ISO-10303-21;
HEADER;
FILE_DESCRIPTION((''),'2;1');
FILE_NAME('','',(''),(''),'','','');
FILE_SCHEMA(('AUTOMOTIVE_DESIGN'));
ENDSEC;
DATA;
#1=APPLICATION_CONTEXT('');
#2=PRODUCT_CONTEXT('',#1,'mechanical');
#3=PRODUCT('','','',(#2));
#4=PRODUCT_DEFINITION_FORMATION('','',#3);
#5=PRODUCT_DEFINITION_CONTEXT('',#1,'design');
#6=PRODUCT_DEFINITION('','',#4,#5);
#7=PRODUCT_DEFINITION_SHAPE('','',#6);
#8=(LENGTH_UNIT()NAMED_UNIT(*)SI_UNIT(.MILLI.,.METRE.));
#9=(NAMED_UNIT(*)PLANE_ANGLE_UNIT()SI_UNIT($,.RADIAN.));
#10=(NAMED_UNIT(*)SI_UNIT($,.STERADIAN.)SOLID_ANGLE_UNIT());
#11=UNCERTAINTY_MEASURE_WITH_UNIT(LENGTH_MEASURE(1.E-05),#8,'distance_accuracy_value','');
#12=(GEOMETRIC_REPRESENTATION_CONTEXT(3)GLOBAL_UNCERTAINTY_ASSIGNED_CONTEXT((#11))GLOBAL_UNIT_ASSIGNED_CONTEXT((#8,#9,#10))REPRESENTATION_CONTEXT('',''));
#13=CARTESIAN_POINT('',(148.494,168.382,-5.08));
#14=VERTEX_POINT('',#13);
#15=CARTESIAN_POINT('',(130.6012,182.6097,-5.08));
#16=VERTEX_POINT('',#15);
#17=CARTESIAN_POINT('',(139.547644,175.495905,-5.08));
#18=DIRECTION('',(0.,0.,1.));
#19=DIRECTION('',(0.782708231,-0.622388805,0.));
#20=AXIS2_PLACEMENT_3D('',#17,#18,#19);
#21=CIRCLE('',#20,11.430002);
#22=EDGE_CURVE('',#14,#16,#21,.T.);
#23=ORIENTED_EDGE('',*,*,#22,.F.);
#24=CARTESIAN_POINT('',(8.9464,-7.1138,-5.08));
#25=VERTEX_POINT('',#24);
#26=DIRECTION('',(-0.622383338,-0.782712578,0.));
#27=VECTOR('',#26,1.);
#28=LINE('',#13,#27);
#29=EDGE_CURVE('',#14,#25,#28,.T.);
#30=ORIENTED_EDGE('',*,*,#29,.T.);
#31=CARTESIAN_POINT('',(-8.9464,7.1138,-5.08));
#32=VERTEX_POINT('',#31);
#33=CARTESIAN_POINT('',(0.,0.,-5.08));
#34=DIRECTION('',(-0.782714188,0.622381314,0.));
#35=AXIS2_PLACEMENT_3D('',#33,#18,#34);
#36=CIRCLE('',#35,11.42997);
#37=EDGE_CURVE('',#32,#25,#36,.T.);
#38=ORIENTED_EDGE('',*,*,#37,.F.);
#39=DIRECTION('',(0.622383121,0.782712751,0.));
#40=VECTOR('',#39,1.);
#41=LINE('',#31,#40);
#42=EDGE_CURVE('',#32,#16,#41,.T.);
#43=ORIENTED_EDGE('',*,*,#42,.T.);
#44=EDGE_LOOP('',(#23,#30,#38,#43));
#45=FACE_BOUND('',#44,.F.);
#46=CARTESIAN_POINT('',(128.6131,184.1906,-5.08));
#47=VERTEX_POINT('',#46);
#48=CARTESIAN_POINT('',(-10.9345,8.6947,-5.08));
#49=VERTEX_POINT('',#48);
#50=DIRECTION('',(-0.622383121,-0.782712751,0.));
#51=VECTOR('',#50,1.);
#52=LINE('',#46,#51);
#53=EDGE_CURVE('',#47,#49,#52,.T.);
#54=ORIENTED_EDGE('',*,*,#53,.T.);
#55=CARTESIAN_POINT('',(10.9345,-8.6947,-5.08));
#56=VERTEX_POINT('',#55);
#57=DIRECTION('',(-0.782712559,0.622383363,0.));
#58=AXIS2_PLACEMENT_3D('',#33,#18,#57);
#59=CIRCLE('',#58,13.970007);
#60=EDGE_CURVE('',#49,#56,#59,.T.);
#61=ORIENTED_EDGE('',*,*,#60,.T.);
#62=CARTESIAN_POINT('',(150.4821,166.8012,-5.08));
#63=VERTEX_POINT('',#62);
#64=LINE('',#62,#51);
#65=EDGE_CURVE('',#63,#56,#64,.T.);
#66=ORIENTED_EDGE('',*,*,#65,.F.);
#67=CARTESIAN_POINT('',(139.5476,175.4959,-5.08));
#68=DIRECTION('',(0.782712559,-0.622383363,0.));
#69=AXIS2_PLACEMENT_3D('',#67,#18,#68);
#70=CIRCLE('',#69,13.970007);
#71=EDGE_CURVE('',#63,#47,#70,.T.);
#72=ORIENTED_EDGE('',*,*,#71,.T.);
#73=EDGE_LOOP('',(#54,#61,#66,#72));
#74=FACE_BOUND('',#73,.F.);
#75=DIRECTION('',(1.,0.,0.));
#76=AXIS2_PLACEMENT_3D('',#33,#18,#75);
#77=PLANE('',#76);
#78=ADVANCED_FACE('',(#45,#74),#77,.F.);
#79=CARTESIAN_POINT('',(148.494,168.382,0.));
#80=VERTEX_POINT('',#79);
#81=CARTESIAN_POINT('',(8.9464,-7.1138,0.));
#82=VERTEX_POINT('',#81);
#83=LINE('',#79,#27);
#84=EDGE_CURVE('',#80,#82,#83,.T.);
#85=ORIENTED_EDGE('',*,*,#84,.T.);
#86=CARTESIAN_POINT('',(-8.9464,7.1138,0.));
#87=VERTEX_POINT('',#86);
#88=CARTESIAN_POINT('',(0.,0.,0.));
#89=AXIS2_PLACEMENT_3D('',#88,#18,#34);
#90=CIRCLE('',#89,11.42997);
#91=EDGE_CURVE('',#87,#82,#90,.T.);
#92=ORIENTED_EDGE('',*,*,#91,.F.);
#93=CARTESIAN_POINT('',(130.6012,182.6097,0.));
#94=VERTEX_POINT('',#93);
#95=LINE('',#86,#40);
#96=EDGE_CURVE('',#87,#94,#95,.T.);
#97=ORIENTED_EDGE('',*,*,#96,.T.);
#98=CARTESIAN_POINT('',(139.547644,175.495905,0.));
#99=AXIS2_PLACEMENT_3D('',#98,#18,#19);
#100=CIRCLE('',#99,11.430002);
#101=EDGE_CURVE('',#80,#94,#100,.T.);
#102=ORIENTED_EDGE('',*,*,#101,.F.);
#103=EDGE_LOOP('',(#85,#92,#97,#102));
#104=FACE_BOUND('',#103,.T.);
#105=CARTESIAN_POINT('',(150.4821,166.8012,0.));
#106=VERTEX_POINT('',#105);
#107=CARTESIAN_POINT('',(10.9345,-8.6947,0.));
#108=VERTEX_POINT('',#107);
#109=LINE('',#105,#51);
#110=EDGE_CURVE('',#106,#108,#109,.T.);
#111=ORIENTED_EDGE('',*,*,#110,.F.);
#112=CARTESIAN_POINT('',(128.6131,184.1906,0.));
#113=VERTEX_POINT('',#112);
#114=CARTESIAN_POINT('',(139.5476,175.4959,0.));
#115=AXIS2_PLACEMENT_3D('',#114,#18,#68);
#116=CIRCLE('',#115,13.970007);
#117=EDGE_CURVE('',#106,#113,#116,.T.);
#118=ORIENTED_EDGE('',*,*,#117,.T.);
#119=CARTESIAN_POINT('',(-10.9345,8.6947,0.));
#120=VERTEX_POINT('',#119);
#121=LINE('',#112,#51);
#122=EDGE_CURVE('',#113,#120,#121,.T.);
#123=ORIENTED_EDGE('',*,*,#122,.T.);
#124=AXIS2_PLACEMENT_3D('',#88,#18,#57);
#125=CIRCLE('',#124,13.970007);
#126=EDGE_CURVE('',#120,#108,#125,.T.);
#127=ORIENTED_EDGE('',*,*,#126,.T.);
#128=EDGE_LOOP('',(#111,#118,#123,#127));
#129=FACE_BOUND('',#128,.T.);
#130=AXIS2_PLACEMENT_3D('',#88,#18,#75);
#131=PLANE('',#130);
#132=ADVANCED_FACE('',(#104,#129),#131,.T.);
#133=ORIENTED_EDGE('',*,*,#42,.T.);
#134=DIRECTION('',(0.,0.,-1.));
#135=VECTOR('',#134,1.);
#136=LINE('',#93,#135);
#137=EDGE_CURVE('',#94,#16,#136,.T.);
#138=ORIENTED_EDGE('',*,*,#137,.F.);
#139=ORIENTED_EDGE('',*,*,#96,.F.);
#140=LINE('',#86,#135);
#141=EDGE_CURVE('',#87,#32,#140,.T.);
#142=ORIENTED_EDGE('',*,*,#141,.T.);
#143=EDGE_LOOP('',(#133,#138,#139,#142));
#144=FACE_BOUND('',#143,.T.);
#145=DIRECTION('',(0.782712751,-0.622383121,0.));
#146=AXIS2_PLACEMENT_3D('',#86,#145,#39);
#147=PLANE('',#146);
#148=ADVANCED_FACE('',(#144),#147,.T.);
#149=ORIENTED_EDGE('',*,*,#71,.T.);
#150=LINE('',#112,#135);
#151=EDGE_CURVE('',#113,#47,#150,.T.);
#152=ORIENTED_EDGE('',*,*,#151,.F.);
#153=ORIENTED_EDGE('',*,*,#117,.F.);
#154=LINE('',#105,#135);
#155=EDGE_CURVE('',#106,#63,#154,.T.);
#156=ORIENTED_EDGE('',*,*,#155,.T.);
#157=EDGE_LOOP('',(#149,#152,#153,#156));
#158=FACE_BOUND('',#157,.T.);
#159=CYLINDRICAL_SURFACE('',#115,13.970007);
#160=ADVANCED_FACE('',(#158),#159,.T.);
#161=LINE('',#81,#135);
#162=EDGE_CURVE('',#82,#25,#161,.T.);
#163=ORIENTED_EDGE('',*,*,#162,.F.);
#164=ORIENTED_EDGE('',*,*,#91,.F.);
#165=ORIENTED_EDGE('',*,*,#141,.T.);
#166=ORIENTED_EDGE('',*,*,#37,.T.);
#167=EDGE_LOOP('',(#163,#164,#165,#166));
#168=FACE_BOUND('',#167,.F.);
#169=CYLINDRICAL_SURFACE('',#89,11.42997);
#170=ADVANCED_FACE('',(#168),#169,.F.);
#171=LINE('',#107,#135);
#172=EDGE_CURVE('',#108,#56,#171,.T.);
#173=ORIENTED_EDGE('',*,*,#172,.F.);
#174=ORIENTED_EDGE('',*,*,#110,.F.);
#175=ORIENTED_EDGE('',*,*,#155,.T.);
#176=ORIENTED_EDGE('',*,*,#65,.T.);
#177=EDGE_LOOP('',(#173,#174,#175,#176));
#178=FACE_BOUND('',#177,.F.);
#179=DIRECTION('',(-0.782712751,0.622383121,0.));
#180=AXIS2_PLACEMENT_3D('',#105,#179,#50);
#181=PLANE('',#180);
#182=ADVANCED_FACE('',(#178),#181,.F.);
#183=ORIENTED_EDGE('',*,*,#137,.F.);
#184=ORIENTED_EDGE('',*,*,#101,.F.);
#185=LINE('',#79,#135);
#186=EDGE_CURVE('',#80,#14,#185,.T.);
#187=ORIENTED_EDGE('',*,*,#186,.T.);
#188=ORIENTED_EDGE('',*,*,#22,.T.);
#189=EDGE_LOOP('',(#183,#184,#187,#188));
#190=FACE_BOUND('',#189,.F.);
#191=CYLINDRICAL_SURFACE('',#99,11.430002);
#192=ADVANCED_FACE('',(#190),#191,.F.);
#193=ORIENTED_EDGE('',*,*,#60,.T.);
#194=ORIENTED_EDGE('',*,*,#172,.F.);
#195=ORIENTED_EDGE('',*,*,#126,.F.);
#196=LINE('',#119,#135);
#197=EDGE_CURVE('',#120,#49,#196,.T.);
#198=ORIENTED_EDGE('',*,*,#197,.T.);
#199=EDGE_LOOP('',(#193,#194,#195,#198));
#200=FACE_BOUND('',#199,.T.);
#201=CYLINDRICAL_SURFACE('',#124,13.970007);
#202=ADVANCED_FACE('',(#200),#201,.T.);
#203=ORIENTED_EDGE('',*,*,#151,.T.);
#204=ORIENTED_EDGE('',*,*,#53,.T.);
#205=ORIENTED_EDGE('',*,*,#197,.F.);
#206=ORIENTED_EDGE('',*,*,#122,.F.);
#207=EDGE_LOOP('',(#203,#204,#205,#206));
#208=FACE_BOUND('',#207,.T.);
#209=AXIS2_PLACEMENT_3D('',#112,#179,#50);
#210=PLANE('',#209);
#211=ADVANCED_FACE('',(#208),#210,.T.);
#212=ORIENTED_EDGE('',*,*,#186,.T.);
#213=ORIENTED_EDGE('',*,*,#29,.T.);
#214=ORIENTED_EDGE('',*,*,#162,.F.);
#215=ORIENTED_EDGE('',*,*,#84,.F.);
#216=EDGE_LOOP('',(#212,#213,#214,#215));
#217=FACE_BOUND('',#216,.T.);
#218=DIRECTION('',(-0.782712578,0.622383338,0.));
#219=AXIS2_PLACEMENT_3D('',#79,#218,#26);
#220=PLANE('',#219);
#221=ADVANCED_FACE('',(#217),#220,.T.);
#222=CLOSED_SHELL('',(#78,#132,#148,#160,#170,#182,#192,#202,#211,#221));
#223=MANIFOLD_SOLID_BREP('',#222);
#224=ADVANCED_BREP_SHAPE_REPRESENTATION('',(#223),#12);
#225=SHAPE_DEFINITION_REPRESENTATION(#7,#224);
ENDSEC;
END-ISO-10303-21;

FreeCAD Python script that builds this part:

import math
import FreeCAD as App
import Part
import Sketcher
from FreeCAD import Vector
Q = App.Units.Quantity

doc = App.newDocument("Part")
params = doc.addObject("Spreadsheet::Sheet", "Params")
for row, (alias, value) in enumerate([
    ("sketch1_radius", "0.55 in"),
    ("sketch1_radius2", "0.45 in"),
    ("pad1_length", "0.2 in"),
], start=1):
    params.set(f"A{row}", alias)
    params.set(f"B{row}", "=" + value)
    params.setAlias(f"B{row}", alias)

body = doc.addObject("PartDesign::Body", "Body")

sketch1 = body.newObject("Sketcher::SketchObject", "Sketch")
sketch1.AttachmentSupport = (doc.getObject("XY_Plane"), [""])
sketch1.MapMode = "FlatFace"
sketch1.addGeometry([
    Part.LineSegment(Vector(129, 184, 0), Vector(-11, 9, 0)),
    Part.ArcOfCircle(Part.Circle(Vector(0, 0, 0), Vector(0, 0, 1), 14), math.radians(142), math.radians(322)),
    Part.LineSegment(Vector(11, -9, 0), Vector(150, 167, 0)),
    Part.ArcOfCircle(Part.Circle(Vector(140, 175, 0), Vector(0, 0, 1), 14), math.radians(-38), math.radians(142)),
    Part.ArcOfCircle(Part.Circle(Vector(0, 0, 0), Vector(0, 0, 1), 11), math.radians(142), math.radians(322)),
    Part.LineSegment(Vector(-9, 7, 0), Vector(131, 183, 0)),
    Part.ArcOfCircle(Part.Circle(Vector(140, 175, 0), Vector(0, 0, 1), 11), math.radians(-38), math.radians(142)),
    Part.LineSegment(Vector(148, 168, 0), Vector(9, -7, 0)),
], False)
sketch1.addConstraint([
    Sketcher.Constraint("Tangent", 0, 2, 1, 1),
    Sketcher.Constraint("Tangent", 1, 2, 2, 1),
    Sketcher.Constraint("Tangent", 2, 2, 3, 1),
    Sketcher.Constraint("Tangent", 3, 2, 0, 1),
    Sketcher.Constraint("Tangent", 4, 1, 5, 1),
    Sketcher.Constraint("Tangent", 5, 2, 6, 2),
    Sketcher.Constraint("Tangent", 6, 1, 7, 1),
    Sketcher.Constraint("Tangent", 7, 2, 4, 2),
    Sketcher.Constraint("Coincident", 1, 3, -1, 1),
    Sketcher.Constraint("Coincident", 4, 3, -1, 1),
    Sketcher.Constraint("Coincident", 6, 3, 3, 3),
    Sketcher.Constraint("Equal", 1, 3),
    Sketcher.Constraint("Equal", 4, 6),
    Sketcher.Constraint("Radius", 1, Q("0.55 in")),
    Sketcher.Constraint("Radius", 4, Q("0.45 in")),
    Sketcher.Constraint("Angle", 0, Q("-128.4904 deg")),
    Sketcher.Constraint("DistanceX", -1, 1, 3, 3, Q("5.494 in")),
])
sketch1.setExpression("Constraints[13]", "Params.sketch1_radius")
sketch1.setExpression("Constraints[14]", "Params.sketch1_radius2")
pad1 = body.newObject("PartDesign::Pad", "Pad")
pad1.Profile = sketch1
pad1.setExpression("Length", "Params.pad1_length")
pad1.Reversed = True

doc.recompute()
